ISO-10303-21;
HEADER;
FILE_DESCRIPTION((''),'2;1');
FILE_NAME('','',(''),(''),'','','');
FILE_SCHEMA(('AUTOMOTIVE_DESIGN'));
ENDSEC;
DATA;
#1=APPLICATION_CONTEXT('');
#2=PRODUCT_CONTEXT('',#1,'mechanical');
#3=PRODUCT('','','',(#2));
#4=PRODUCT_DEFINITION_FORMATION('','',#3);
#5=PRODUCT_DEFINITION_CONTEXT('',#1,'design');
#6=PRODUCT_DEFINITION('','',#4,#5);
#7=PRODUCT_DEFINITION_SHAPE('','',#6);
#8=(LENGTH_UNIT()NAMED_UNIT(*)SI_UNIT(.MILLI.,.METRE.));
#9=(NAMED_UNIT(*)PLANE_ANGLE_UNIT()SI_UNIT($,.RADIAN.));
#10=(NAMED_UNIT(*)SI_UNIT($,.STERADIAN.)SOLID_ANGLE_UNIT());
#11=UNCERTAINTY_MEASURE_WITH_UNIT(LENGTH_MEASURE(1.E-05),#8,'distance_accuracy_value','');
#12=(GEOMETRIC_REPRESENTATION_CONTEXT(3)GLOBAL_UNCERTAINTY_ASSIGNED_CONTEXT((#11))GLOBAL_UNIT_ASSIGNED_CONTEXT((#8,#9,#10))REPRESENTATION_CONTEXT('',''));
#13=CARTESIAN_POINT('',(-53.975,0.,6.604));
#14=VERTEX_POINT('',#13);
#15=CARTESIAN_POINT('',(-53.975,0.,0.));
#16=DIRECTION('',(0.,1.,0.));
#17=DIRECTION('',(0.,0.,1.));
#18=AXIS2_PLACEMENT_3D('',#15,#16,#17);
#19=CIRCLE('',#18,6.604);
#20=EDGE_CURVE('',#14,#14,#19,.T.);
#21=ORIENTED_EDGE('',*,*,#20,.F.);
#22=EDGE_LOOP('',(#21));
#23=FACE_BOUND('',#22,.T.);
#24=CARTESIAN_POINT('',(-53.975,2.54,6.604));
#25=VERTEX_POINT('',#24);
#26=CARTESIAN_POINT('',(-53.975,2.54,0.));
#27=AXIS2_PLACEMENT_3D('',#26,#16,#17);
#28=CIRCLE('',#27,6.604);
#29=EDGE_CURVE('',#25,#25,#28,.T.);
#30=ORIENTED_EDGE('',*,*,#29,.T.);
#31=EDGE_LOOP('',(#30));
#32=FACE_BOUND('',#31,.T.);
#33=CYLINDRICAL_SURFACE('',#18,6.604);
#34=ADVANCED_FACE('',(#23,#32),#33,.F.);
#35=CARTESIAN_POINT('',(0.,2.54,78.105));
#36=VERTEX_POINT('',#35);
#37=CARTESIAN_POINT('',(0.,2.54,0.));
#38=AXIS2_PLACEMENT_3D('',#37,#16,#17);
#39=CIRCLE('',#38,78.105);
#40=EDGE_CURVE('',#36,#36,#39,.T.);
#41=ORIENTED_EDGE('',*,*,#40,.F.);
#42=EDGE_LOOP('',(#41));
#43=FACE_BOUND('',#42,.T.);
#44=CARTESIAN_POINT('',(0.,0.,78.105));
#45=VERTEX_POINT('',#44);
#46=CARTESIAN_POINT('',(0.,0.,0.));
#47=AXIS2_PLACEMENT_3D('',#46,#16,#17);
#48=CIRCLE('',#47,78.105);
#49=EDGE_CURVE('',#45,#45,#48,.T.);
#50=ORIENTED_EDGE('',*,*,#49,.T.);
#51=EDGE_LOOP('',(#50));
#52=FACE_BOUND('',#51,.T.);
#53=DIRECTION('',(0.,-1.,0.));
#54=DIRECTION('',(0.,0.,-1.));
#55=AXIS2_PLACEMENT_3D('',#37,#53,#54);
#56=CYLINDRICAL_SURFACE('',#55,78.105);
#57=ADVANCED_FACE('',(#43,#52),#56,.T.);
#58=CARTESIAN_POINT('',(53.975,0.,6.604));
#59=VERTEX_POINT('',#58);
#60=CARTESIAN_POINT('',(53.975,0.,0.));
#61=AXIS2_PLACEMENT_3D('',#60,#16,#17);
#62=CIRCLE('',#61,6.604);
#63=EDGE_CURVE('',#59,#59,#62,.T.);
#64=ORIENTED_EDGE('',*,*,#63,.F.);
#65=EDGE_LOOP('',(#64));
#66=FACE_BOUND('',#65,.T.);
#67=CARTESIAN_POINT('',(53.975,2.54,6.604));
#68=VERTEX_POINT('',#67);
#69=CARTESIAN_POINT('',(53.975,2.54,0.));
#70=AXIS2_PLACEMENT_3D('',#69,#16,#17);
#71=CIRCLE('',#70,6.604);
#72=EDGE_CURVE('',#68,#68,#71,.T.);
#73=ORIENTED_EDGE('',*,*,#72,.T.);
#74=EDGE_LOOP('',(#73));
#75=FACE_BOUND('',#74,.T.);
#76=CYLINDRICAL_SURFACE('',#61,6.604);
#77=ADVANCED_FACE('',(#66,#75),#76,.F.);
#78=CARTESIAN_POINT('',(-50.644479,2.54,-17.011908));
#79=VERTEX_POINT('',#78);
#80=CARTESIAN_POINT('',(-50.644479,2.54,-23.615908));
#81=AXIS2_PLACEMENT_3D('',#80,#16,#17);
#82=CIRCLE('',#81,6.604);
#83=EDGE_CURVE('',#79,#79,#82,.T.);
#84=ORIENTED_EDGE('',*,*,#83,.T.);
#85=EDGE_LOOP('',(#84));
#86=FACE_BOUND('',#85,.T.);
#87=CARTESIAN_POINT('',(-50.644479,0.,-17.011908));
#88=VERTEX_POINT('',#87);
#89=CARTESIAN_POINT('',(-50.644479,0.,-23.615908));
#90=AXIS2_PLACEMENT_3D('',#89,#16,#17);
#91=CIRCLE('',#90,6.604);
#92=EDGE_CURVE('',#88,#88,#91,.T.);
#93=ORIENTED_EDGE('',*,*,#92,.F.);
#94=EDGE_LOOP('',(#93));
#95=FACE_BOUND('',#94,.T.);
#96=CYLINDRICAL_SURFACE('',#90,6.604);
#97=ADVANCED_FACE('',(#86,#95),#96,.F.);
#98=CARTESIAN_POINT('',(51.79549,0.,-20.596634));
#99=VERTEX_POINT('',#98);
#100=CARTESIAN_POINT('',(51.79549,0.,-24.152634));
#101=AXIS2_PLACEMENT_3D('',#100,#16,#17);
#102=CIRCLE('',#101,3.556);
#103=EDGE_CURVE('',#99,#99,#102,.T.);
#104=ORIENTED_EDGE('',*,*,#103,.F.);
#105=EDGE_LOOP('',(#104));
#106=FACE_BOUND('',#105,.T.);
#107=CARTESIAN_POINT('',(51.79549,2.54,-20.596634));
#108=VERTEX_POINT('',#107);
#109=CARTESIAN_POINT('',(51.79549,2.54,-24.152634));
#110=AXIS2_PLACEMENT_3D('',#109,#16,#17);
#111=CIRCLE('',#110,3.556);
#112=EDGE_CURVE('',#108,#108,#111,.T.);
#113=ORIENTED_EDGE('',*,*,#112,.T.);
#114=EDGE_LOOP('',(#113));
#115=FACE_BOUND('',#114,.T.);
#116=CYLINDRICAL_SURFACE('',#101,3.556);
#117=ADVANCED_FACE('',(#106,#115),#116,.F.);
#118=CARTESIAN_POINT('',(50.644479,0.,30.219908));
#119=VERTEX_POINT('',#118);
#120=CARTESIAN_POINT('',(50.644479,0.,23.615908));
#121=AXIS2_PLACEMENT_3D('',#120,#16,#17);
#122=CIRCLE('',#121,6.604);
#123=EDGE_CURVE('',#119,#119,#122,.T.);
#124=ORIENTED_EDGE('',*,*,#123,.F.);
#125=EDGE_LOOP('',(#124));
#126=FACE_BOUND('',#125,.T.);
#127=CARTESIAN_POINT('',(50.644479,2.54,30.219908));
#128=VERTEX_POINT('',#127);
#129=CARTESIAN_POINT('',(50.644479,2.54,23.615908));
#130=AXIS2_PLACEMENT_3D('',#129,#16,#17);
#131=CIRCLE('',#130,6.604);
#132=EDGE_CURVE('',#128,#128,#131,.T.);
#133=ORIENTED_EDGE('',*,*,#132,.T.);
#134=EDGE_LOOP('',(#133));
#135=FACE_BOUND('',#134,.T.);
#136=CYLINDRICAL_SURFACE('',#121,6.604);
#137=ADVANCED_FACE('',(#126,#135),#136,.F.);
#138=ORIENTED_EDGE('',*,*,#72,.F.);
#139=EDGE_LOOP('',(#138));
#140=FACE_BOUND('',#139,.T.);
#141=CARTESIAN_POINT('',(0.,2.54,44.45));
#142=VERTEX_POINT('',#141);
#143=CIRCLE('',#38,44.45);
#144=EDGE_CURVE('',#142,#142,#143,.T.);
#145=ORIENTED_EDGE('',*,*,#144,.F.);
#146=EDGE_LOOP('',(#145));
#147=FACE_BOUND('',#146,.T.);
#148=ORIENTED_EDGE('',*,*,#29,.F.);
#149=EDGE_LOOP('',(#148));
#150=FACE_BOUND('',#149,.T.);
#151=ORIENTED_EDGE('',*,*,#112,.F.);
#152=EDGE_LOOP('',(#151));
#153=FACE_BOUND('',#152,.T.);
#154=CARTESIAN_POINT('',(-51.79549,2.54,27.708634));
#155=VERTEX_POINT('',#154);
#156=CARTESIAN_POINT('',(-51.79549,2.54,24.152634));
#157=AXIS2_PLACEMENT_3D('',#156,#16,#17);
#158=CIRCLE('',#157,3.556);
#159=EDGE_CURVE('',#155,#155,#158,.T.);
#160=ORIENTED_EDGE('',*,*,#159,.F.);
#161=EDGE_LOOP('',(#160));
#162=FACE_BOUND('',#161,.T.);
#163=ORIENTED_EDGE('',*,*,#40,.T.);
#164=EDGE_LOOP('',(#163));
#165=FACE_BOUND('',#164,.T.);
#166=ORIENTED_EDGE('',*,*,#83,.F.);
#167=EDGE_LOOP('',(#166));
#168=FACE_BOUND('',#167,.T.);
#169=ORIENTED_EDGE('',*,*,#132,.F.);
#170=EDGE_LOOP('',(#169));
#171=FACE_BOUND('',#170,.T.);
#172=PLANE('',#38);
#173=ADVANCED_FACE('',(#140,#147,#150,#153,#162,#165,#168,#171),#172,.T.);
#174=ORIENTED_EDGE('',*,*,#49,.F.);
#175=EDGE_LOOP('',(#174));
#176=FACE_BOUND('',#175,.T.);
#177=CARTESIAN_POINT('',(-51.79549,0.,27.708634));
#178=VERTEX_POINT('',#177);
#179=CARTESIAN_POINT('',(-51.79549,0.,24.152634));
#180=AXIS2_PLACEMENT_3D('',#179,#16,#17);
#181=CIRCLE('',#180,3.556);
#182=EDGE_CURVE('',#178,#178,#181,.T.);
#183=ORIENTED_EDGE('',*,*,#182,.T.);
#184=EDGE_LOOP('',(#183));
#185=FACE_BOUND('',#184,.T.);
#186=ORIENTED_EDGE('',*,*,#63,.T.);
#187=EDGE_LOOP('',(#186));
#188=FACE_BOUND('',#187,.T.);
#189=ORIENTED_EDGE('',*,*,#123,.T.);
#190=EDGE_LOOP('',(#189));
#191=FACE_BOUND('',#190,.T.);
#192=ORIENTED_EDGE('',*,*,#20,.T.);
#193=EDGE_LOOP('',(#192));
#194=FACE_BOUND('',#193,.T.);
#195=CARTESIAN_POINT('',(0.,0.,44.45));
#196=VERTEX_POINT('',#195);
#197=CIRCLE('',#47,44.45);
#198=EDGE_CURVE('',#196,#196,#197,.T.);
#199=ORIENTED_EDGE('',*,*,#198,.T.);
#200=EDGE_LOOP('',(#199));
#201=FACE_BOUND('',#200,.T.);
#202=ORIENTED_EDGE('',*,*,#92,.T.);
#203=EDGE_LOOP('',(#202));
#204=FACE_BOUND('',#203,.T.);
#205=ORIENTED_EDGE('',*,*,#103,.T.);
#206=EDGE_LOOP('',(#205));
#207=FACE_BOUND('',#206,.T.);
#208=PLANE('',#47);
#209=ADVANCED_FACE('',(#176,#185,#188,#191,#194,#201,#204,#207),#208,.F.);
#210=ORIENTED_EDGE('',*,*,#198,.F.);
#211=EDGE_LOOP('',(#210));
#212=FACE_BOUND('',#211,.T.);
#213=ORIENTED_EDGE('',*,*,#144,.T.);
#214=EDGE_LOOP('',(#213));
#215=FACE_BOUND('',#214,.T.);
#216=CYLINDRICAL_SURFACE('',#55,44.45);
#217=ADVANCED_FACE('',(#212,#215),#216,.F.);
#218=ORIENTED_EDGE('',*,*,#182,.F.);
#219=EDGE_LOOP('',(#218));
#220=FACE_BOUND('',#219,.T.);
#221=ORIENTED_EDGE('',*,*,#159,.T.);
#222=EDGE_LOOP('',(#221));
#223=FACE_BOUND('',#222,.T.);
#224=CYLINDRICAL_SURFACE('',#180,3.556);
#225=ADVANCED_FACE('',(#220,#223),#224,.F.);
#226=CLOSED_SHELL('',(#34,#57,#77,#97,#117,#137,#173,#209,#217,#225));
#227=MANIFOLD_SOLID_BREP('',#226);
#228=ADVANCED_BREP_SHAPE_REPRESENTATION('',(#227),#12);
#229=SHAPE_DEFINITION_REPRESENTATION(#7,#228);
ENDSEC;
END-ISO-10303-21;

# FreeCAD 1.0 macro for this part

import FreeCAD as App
import Part
import Sketcher
from FreeCAD import Vector
Q = App.Units.Quantity

doc = App.newDocument("Part")
body = doc.addObject("PartDesign::Body", "Body")

sketch1 = body.newObject("Sketcher::SketchObject", "Sketch")
sketch1.AttachmentSupport = (doc.getObject("XZ_Plane"), [""])
sketch1.MapMode = "FlatFace"
sketch1.addGeometry(Part.Circle(Vector(0, 0, 0), Vector(0, 0, 1), 78), False)
sketch1.addGeometry(Part.Circle(Vector(0, 0, 0), Vector(0, 0, 1), 44), False)
sketch1.addConstraint(Sketcher.Constraint("Coincident", 0, 3, -1, 1))
sketch1.addConstraint(Sketcher.Constraint("Coincident", 1, 3, -1, 1))
sketch1.addConstraint(Sketcher.Constraint("Diameter", 1, Q("3.5 in")))
sketch1.addConstraint(Sketcher.Constraint("Diameter", 0, Q("6.15 in")))
pad1 = body.newObject("PartDesign::Pad", "Pad")
pad1.Profile = sketch1
pad1.Length = Q("0.1 in")
pad1.Reversed = True

sketch2 = body.newObject("Sketcher::SketchObject", "Sketch001")
sketch2.AttachmentSupport = (doc.getObject("XZ_Plane"), [""])
sketch2.MapMode = "FlatFace"
sketch2.AttachmentOffset = App.Placement(Vector(0, 0, -0.1 * 25.4), App.Rotation())
sketch2.addGeometry(Part.Circle(Vector(-54, 0, 0), Vector(0, 0, 1), 6.6), False)
sketch2.addGeometry(Part.Circle(Vector(54, 0, 0), Vector(0, 0, 1), 6.6), False)
sketch2.addGeometry(Part.Circle(Vector(-51.8, 24.2, 0), Vector(0, 0, 1), 3.6), False)
sketch2.addGeometry(Part.Circle(Vector(51.8, -24.2, 0), Vector(0, 0, 1), 3.6), False)
sketch2.addGeometry(Part.Circle(Vector(50.6, 23.6, 0), Vector(0, 0, 1), 6.6), False)
sketch2.addGeometry(Part.Circle(Vector(-50.6, -23.6, 0), Vector(0, 0, 1), 6.6), False)
sketch2.addConstraint(Sketcher.Constraint("Equal", 0, 1))
sketch2.addConstraint(Sketcher.Constraint("Equal", 2, 3))
sketch2.addConstraint(Sketcher.Constraint("Equal", 1, 4))
sketch2.addConstraint(Sketcher.Constraint("Equal", 4, 5))
sketch2.addConstraint(Sketcher.Constraint("Symmetric", 0, 3, 1, 3, -1, 1))
sketch2.addConstraint(Sketcher.Constraint("Symmetric", 2, 3, 3, 3, -1, 1))
sketch2.addConstraint(Sketcher.Constraint("Symmetric", 4, 3, 5, 3, -1, 1))
sketch2.addConstraint(Sketcher.Constraint("PointOnObject", 0, 3, -1))
sketch2.addConstraint(Sketcher.Constraint("Diameter", 0, Q("0.52 in")))
sketch2.addConstraint(Sketcher.Constraint("Diameter", 2, Q("0.28 in")))
sketch2.addConstraint(Sketcher.Constraint("DistanceX", 0, 3, 1, 3, Q("4.25 in")))
sketch2.addConstraint(Sketcher.Constraint("DistanceX", 2, 3, -1, 1, 51.79549))
sketch2.addConstraint(Sketcher.Constraint("DistanceX", -1, 1, 4, 3, 50.644479))
sketch2.addConstraint(Sketcher.Constraint("DistanceY", -1, 1, 4, 3, 23.615908))
sketch2.addConstraint(Sketcher.Constraint("DistanceY", -1, 1, 2, 3, 24.152634))
pocket1 = body.newObject("PartDesign::Pocket", "Pocket")
pocket1.Profile = sketch2
pocket1.Length = Q("0.1 in")
pocket1.Reversed = True

doc.recompute()
